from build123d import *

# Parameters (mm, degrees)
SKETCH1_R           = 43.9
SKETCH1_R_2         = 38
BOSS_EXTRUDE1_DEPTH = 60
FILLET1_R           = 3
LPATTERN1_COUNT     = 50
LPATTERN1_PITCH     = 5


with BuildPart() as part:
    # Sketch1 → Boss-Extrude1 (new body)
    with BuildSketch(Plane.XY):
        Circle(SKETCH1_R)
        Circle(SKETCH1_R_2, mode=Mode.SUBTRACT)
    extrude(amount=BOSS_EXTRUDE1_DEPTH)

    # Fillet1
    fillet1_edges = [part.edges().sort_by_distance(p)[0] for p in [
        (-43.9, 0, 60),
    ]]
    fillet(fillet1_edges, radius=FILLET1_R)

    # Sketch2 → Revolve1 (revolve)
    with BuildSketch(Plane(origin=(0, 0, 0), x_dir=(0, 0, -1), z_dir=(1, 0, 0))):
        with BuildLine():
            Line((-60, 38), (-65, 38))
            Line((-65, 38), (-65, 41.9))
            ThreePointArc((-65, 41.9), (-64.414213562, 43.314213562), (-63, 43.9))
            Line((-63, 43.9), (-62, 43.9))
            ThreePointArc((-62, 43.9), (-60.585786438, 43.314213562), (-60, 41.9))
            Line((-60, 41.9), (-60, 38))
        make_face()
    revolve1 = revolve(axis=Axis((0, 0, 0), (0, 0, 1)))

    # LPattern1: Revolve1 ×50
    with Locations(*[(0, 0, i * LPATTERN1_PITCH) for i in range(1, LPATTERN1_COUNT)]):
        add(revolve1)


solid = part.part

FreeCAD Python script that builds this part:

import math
import FreeCAD as App
import Part
import Sketcher


def edges_at(feature, points):
    """Names of the edges that pass closest to the given points."""
    edges = feature.Shape.Edges
    near = lambda p: min(range(len(edges)), key=lambda i: edges[i].distToShape(Part.Vertex(*p))[0])
    return sorted({f"Edge{near(p) + 1}" for p in points})

doc = App.newDocument("Part")
body = doc.addObject("PartDesign::Body", "Body")

sketch1 = body.newObject("Sketcher::SketchObject", "Sketch")
sketch1.AttachmentSupport = (doc.getObject("XY_Plane"), [""])
sketch1.MapMode = "FlatFace"
sketch1.addGeometry([
    Part.Circle(App.Vector(0, 0, 0), App.Vector(0, 0, 1), 43.9),
    Part.Circle(App.Vector(0, 0, 0), App.Vector(0, 0, 1), 38),
], False)
sketch1.addConstraint([
    Sketcher.Constraint("Coincident", 0, 3, -1, 1),
    Sketcher.Constraint("Coincident", 1, 3, -1, 1),
    Sketcher.Constraint("Diameter", 1, 76.0),
    Sketcher.Constraint("Diameter", 0, 87.8),
])
pad1 = body.newObject("PartDesign::Pad", "Pad")
pad1.Profile = sketch1
pad1.Length = 60
doc.recompute()

fillet = body.newObject("PartDesign::Fillet", "Fillet")
fillet.Base = (pad1, edges_at(pad1, [(-43.9, 0, 60)]))
fillet.Radius = 3

sketch2 = body.newObject("Sketcher::SketchObject", "Sketch001")
sketch2.AttachmentSupport = (doc.getObject("YZ_Plane"), [""])
sketch2.MapMode = "FlatFace"
sketch2.addGeometry([
    Part.LineSegment(App.Vector(38, 65, 0), App.Vector(38, 60, 0)),
    Part.LineSegment(App.Vector(38, 60, 0), App.Vector(41.9, 60, 0)),
    Part.ArcOfCircle(Part.Circle(App.Vector(41.9, 62, 0), App.Vector(0, 0, 1), 2), math.radians(-90), math.radians(0)),
    Part.LineSegment(App.Vector(43.9, 62, 0), App.Vector(43.9, 63, 0)),
    Part.ArcOfCircle(Part.Circle(App.Vector(41.9, 63, 0), App.Vector(0, 0, 1), 2), math.radians(0), math.radians(90)),
    Part.LineSegment(App.Vector(41.9, 65, 0), App.Vector(38, 65, 0)),
], False)
sketch2.addConstraint([
    Sketcher.Constraint("Coincident", 0, 2, 1, 1),
    Sketcher.Constraint("Tangent", 1, 2, 2, 1),
    Sketcher.Constraint("Tangent", 2, 2, 3, 1),
    Sketcher.Constraint("Tangent", 3, 2, 4, 1),
    Sketcher.Constraint("Tangent", 4, 2, 5, 1),
    Sketcher.Constraint("Coincident", 5, 2, 0, 1),
    Sketcher.Constraint("Vertical", 0),
    Sketcher.Constraint("Horizontal", 1),
    Sketcher.Constraint("Vertical", 3),
    Sketcher.Constraint("Horizontal", 5),
    Sketcher.Constraint("Equal", 2, 4),
    Sketcher.Constraint("Radius", 2, 2.0),
    Sketcher.Constraint("DistanceY", 0, 2, 0, 1, 5.0),
    Sketcher.Constraint("DistanceX", 1, 1, 1, 2, 3.9),
    Sketcher.Constraint("DistanceY", -1, 1, 2, 3, 62.0),
    Sketcher.Constraint("DistanceX", -1, 1, 0, 2, 38.0),
])
revolution = body.newObject("PartDesign::Revolution", "Revolution")
revolution.Profile = sketch2
revolution.ReferenceAxis = (sketch2, ["V_Axis"])
revolution.Angle = 360
doc.recompute()

linearpattern = body.newObject("PartDesign::LinearPattern", "LinearPattern")
linearpattern.Originals = [revolution]
linearpattern.Direction = (doc.getObject("Z_Axis"), [""])
linearpattern.Mode = "offset"
linearpattern.Offset = 5
linearpattern.Occurrences = 50
body.Tip = linearpattern

doc.recompute()
